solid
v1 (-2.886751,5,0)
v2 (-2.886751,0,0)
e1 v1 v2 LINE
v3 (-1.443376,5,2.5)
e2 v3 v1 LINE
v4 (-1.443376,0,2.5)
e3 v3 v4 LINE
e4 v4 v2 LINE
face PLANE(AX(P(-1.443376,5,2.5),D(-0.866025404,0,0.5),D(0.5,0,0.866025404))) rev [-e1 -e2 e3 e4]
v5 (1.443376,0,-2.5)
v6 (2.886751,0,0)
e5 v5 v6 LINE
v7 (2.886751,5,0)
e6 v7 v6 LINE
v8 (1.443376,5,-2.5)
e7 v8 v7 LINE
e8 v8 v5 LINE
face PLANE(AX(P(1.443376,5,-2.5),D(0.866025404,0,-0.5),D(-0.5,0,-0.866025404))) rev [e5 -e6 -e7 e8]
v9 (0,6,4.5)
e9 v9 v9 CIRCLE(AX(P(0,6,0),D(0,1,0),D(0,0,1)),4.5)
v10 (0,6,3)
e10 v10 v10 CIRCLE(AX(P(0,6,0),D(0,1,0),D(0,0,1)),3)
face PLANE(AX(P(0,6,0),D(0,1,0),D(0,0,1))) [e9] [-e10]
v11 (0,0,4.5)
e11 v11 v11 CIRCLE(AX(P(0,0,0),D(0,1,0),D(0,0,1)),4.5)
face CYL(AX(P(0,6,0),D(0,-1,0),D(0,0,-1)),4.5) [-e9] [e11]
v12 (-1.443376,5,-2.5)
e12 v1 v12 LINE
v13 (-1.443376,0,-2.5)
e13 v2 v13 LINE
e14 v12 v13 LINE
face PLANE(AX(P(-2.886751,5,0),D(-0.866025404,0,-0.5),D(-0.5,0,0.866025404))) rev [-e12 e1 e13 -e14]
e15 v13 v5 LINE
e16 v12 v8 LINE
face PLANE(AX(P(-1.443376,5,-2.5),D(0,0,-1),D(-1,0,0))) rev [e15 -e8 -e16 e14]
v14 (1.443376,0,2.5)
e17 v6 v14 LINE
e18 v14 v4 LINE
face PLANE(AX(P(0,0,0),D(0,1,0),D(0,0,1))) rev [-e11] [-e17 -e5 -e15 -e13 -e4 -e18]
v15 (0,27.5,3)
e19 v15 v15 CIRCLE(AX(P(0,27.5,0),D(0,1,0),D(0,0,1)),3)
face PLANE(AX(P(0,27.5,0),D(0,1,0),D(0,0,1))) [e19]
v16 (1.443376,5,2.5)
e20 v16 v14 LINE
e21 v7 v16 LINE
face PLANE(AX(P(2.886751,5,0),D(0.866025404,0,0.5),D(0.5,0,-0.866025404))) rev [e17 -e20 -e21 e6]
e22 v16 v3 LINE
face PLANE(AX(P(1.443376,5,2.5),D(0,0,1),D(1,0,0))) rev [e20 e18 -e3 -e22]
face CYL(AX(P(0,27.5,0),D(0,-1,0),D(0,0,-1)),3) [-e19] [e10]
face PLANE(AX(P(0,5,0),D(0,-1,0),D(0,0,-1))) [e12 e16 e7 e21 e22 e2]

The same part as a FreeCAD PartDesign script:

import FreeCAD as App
import Part
import Sketcher
from FreeCAD import Vector
Q = App.Units.Quantity


def add_polygon(sketch, points):
    """Adds a closed chain of lines whose ends are joined by coincident constraints."""
    first, n = sketch.GeometryCount, len(points)
    for a, b in zip(points, points[1:] + points[:1]):
        sketch.addGeometry(Part.LineSegment(App.Vector(*a, 0), App.Vector(*b, 0)), False)
    for i in range(n):
        sketch.addConstraint(Sketcher.Constraint("Coincident", first + i, 2, first + (i + 1) % n, 1))

doc = App.newDocument("Part")
params = doc.addObject("Spreadsheet::Sheet", "Params")
for row, (alias, value) in enumerate([
    ("sketch1_diameter", "9 mm"),
    ("pad1_length", "6 mm"),
    ("sketch2_diameter", "6 mm"),
    ("pad2_length", "21.5 mm"),
    ("pocket1_length", "5 mm"),
], start=1):
    params.set(f"A{row}", alias)
    params.set(f"B{row}", "=" + value)
    params.setAlias(f"B{row}", alias)

body = doc.addObject("PartDesign::Body", "Body")

# Sketch on XZ plane
sketch1 = body.newObject("Sketcher::SketchObject", "Sketch")
sketch1.AttachmentSupport = (doc.getObject("XZ_Plane"), [""])
sketch1.MapMode = "FlatFace"
sketch1.addGeometry(Part.Circle(Vector(0, 0, 0), Vector(0, 0, 1), 4.5), False)
sketch1.addConstraint([
    Sketcher.Constraint("Coincident", 0, 3, -1, 1),
    Sketcher.Constraint("Diameter", 0, Q("9 mm")),
])
sketch1.setExpression("Constraints[1]", "Params.sketch1_diameter")
pad1 = body.newObject("PartDesign::Pad", "Pad")
pad1.Profile = sketch1
pad1.setExpression("Length", "Params.pad1_length")
pad1.Reversed = True

# Sketch on XZ plane
sketch2 = body.newObject("Sketcher::SketchObject", "Sketch001")
sketch2.AttachmentSupport = (doc.getObject("XZ_Plane"), [""])
sketch2.MapMode = "FlatFace"
sketch2.AttachmentOffset = App.Placement(Vector(0, 0, -6), App.Rotation())
sketch2.addGeometry(Part.Circle(Vector(0, 0, 0), Vector(0, 0, 1), 3), False)
sketch2.addConstraint([
    Sketcher.Constraint("Coincident", 0, 3, -1, 1),
    Sketcher.Constraint("Diameter", 0, Q("6 mm")),
])
sketch2.setExpression("Constraints[1]", "Params.sketch2_diameter")
pad2 = body.newObject("PartDesign::Pad", "Pad001")
pad2.Profile = sketch2
pad2.setExpression("Length", "Params.pad2_length")
pad2.Reversed = True

# Sketch on XZ plane
sketch3 = body.newObject("Sketcher::SketchObject", "Sketch002")
sketch3.AttachmentSupport = (doc.getObject("XZ_Plane"), [""])
sketch3.MapMode = "FlatFace"
add_polygon(sketch3, [(2.9, 0), (1.4, 2.5), (-1.4, 2.5), (-2.9, 0), (-1.4, -2.5), (1.4, -2.5)])  # lines 0-5
sketch3.addConstraint([
    Sketcher.Constraint("Horizontal", 1),
    Sketcher.Constraint("Horizontal", 4),
    Sketcher.Constraint("Symmetric", 0, 2, 3, 2, -1, 1),
    Sketcher.Constraint("Symmetric", 2, 2, 5, 2, -1, 1),
    Sketcher.Constraint("PointOnObject", 2, 2, -1),
    Sketcher.Constraint("Parallel", 2, 5),
    Sketcher.Constraint("Vertical", 1, 2, 3, 2),
    Sketcher.Constraint("Angle", 0, Q("120 deg")),
    Sketcher.Constraint("DistanceY", 3, 2, 1, 2, Q("5 mm")),
    Sketcher.Constraint("DistanceX", 1, 2, 1, 1, Q("2.886751 mm")),
])
pocket1 = body.newObject("PartDesign::Pocket", "Pocket")
pocket1.Profile = sketch3
pocket1.setExpression("Length", "Params.pocket1_length")

doc.recompute()
